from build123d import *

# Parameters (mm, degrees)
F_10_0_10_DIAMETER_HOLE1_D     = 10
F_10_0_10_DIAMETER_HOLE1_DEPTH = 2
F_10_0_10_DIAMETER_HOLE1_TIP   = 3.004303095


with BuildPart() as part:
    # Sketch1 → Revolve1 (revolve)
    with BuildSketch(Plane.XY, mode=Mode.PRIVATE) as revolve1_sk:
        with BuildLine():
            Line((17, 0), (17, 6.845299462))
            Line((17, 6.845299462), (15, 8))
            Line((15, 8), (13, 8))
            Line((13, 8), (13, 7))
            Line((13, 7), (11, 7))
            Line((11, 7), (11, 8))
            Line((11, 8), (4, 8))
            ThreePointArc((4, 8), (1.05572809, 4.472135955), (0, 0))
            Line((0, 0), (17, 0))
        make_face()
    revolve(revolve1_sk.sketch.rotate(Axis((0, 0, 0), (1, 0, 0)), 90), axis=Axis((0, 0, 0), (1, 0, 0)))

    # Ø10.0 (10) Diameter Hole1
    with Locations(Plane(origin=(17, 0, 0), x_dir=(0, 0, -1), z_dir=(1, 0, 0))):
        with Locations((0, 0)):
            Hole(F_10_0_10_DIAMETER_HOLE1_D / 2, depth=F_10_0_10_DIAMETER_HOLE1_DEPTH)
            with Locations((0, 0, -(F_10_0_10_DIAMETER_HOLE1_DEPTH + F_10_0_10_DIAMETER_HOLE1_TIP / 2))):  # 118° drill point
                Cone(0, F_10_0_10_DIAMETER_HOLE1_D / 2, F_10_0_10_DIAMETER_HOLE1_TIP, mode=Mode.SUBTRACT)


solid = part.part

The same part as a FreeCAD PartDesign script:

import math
import FreeCAD as App
import Part
import Sketcher

V = App.Vector
Q = App.Units.Quantity

doc = App.newDocument("Part")
body = doc.addObject("PartDesign::Body", "Body")

sketch1 = body.newObject("Sketcher::SketchObject", "Sketch")
sketch1.AttachmentSupport = (doc.getObject("XY_Plane"), [""])
sketch1.MapMode = "FlatFace"
sketch1.addGeometry([
    Part.LineSegment(V(17, 0, 0), V(17, 6.845299, 0)),
    Part.LineSegment(V(17, 6.845299, 0), V(15, 8, 0)),
    Part.LineSegment(V(15, 8, 0), V(13, 8, 0)),
    Part.LineSegment(V(13, 8, 0), V(13, 7, 0)),
    Part.LineSegment(V(13, 7, 0), V(11, 7, 0)),
    Part.LineSegment(V(11, 7, 0), V(11, 8, 0)),
    Part.LineSegment(V(11, 8, 0), V(4, 8, 0)),
    Part.ArcOfCircle(Part.Circle(V(10, 0, 0), V(0, 0, 1), 10), math.radians(126.869898), math.radians(180)),
    Part.LineSegment(V(0, 0, 0), V(17, 0, 0)),
], False)
sketch1.addConstraint([
    Sketcher.Constraint("Coincident", 0, 2, 1, 1),
    Sketcher.Constraint("Coincident", 1, 2, 2, 1),
    Sketcher.Constraint("Coincident", 2, 2, 3, 1),
    Sketcher.Constraint("Coincident", 3, 2, 4, 1),
    Sketcher.Constraint("Coincident", 4, 2, 5, 1),
    Sketcher.Constraint("Coincident", 5, 2, 6, 1),
    Sketcher.Constraint("Coincident", 6, 2, 7, 1),
    Sketcher.Constraint("Coincident", 7, 2, 8, 1),
    Sketcher.Constraint("Coincident", 8, 2, 0, 1),
    Sketcher.Constraint("Vertical", 0),
    Sketcher.Constraint("Horizontal", 2),
    Sketcher.Constraint("Vertical", 3),
    Sketcher.Constraint("Horizontal", 4),
    Sketcher.Constraint("Vertical", 5),
    Sketcher.Constraint("Horizontal", 6),
    Sketcher.Constraint("Horizontal", 8),
    Sketcher.Constraint("Coincident", 7, 2, -1, 1),
    Sketcher.Constraint("PointOnObject", 7, 3, -1),
    Sketcher.Constraint("Horizontal", 2, 2, 5, 2),
    Sketcher.Constraint("Equal", 2, 4),
    Sketcher.Constraint("Radius", 7, 10.0),
    Sketcher.Constraint("DistanceX", 2, 2, 2, 1, 2.0),
    Sketcher.Constraint("DistanceX", 6, 2, 6, 1, 7.0),
    Sketcher.Constraint("DistanceX", 8, 1, 8, 2, 17.0),
    Sketcher.Constraint("DistanceY", 3, 2, 3, 1, 1.0),
    Sketcher.Constraint("Angle", 1, Q("150 deg")),
    Sketcher.Constraint("DistanceX", -1, 1, 1, 2, 15.0),
])
revolution = body.newObject("PartDesign::Revolution", "Revolution")
revolution.Profile = sketch1
revolution.ReferenceAxis = (sketch1, ["H_Axis"])
revolution.Angle = 360

sketch2 = body.newObject("Sketcher::SketchObject", "Sketch001")
sketch2.AttachmentSupport = (doc.getObject("YZ_Plane"), [""])
sketch2.MapMode = "FlatFace"
sketch2.AttachmentOffset = App.Placement(V(0, 0, 17), App.Rotation())
sketch2.addGeometry(Part.Circle(V(0, 0, 0), V(0, 0, 1), 5), False)
sketch2.addConstraint([
    Sketcher.Constraint("Coincident", 0, 3, -1, 1),
    Sketcher.Constraint("Diameter", 0, 10.0),
])
doc.recompute()
hole = body.newObject("PartDesign::Hole", "Hole")
hole.Profile = sketch2
hole.ThreadType = "None"
hole.Diameter = 10
hole.DepthType = "Dimension"
hole.Depth = 2
hole.DrillPoint = "Angled"
hole.DrillPointAngle = 118

doc.recompute()
